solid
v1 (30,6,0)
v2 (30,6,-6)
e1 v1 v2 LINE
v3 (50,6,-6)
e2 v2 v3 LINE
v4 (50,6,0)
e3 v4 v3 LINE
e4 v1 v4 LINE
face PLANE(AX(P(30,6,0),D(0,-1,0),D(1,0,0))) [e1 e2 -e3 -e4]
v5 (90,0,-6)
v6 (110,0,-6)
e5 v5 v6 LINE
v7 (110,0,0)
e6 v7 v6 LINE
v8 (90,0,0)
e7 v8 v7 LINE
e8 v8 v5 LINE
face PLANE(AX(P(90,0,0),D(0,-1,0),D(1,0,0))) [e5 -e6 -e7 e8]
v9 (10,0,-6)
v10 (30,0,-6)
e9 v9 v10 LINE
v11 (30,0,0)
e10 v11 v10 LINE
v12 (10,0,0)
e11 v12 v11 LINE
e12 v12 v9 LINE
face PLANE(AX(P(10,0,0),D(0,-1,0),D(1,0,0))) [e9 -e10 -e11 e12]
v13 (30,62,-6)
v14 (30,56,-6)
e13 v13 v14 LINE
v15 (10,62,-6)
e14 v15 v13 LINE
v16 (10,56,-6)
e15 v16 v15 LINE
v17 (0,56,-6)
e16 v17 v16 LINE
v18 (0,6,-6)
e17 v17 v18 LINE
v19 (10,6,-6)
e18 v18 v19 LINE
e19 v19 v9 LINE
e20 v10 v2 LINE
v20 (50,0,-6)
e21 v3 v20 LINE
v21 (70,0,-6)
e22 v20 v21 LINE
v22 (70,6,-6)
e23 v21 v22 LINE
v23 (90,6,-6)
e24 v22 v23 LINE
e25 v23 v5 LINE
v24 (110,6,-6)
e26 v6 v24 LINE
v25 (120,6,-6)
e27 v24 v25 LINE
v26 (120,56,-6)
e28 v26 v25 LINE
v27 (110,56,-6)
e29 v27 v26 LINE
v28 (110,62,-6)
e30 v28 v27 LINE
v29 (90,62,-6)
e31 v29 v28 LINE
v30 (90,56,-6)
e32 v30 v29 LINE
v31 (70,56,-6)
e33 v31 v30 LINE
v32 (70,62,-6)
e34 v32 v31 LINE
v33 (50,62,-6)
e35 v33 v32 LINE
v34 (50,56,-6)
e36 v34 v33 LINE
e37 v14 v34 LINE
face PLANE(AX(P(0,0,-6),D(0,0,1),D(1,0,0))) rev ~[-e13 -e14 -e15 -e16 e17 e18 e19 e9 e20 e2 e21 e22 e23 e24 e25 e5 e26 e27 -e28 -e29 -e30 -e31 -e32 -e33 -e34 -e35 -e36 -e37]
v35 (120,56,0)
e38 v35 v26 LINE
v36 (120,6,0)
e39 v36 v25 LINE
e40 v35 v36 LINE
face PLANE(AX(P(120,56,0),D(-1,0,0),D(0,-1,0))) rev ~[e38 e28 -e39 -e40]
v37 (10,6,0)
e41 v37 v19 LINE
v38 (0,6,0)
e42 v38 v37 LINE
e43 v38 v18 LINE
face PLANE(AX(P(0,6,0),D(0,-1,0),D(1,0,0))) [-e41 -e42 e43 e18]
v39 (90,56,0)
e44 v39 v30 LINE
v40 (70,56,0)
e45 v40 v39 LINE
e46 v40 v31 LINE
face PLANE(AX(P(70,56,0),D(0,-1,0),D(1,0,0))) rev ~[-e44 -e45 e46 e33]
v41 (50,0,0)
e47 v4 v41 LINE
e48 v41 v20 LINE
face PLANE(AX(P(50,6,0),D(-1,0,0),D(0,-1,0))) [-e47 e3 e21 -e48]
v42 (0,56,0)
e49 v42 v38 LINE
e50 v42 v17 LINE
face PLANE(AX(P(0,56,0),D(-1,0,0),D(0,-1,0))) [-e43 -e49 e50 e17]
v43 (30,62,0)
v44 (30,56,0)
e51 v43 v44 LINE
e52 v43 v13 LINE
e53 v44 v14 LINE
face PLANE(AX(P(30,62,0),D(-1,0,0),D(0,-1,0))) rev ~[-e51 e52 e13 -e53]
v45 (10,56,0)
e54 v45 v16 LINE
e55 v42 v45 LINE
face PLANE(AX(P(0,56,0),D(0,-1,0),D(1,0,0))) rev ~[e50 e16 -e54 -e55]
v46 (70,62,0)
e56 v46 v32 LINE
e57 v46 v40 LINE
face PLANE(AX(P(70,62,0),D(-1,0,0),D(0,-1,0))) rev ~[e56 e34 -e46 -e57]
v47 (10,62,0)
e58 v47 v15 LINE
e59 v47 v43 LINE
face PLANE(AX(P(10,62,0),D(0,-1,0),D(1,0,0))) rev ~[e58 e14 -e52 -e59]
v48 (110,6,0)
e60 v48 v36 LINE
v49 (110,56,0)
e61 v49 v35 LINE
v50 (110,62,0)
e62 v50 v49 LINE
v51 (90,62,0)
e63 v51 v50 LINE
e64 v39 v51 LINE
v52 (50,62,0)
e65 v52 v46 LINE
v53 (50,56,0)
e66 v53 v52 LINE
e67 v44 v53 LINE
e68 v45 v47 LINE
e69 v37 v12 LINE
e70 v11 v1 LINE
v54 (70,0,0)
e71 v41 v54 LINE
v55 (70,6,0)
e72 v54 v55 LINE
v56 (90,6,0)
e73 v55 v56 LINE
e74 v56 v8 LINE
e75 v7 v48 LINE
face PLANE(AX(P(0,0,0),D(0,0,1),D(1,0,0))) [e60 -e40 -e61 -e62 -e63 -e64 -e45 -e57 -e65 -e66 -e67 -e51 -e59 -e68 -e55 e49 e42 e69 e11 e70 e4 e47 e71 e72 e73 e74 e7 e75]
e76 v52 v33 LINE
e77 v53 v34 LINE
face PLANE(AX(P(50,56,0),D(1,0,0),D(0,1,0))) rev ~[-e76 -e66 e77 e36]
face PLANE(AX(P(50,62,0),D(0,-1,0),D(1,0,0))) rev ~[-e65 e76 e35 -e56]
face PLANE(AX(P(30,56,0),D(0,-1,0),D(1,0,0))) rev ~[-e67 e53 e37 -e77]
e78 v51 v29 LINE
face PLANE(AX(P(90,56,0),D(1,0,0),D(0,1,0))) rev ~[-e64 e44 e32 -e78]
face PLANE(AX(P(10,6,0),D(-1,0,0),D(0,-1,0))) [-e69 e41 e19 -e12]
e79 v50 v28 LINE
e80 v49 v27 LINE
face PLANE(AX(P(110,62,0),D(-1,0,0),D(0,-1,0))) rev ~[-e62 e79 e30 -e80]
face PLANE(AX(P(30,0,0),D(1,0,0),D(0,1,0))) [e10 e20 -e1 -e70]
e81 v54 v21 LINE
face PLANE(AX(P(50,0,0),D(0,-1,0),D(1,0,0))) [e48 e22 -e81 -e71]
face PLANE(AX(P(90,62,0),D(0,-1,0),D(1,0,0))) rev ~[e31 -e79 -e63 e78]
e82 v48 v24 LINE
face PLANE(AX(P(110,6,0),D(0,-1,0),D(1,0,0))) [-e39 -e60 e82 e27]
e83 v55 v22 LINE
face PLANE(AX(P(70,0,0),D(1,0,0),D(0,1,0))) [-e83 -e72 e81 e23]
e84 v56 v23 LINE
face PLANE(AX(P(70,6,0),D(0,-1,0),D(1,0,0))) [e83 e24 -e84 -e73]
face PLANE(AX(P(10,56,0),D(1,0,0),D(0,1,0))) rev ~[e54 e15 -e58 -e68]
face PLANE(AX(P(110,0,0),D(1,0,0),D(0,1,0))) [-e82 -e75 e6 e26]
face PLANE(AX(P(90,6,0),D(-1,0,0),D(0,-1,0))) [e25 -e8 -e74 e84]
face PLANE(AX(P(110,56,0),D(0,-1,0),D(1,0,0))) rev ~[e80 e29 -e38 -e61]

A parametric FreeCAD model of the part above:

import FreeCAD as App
import Part
import Sketcher

V = App.Vector
Q = App.Units.Quantity

doc = App.newDocument("Part")
params = doc.addObject("Spreadsheet::Sheet", "Params")
for row, (alias, value) in enumerate([
    ("sketch1_width", "10 mm"),
    ("sketch1_width2", "20 mm"),
    ("sketch1_height", "50 mm"),
    ("sketch1_height2", "6 mm"),
    ("pad1_length", "6 mm"),
], start=1):
    params.set(f"A{row}", alias)
    params.set(f"B{row}", "=" + value)
    params.setAlias(f"B{row}", alias)

body = doc.addObject("PartDesign::Body", "Body")

sketch1 = body.newObject("Sketcher::SketchObject", "Sketch")
sketch1.AttachmentSupport = (doc.getObject("XY_Plane"), [""])
sketch1.MapMode = "FlatFace"
sketch1.addGeometry([
    Part.LineSegment(V(0, 56, 0), V(0, 6, 0)),
    Part.LineSegment(V(0, 6, 0), V(10, 6, 0)),
    Part.LineSegment(V(10, 6, 0), V(10, 0, 0)),
    Part.LineSegment(V(10, 0, 0), V(30, 0, 0)),
    Part.LineSegment(V(30, 0, 0), V(30, 6, 0)),
    Part.LineSegment(V(30, 6, 0), V(50, 6, 0)),
    Part.LineSegment(V(50, 6, 0), V(50, 0, 0)),
    Part.LineSegment(V(50, 0, 0), V(70, 0, 0)),
    Part.LineSegment(V(70, 0, 0), V(70, 6, 0)),
    Part.LineSegment(V(70, 6, 0), V(90, 6, 0)),
    Part.LineSegment(V(90, 6, 0), V(90, 0, 0)),
    Part.LineSegment(V(90, 0, 0), V(110, 0, 0)),
    Part.LineSegment(V(110, 0, 0), V(110, 6, 0)),
    Part.LineSegment(V(110, 6, 0), V(120, 6, 0)),
    Part.LineSegment(V(120, 6, 0), V(120, 56, 0)),
    Part.LineSegment(V(120, 56, 0), V(110, 56, 0)),
    Part.LineSegment(V(110, 56, 0), V(110, 62, 0)),
    Part.LineSegment(V(110, 62, 0), V(90, 62, 0)),
    Part.LineSegment(V(90, 62, 0), V(90, 56, 0)),
    Part.LineSegment(V(90, 56, 0), V(70, 56, 0)),
    Part.LineSegment(V(70, 56, 0), V(70, 62, 0)),
    Part.LineSegment(V(70, 62, 0), V(50, 62, 0)),
    Part.LineSegment(V(50, 62, 0), V(50, 56, 0)),
    Part.LineSegment(V(50, 56, 0), V(30, 56, 0)),
    Part.LineSegment(V(30, 56, 0), V(30, 62, 0)),
    Part.LineSegment(V(30, 62, 0), V(10, 62, 0)),
    Part.LineSegment(V(10, 62, 0), V(10, 56, 0)),
    Part.LineSegment(V(10, 56, 0), V(0, 56, 0)),
], False)
sketch1.addConstraint([
    Sketcher.Constraint("Coincident", 0, 2, 1, 1),
    Sketcher.Constraint("Coincident", 1, 2, 2, 1),
    Sketcher.Constraint("Coincident", 2, 2, 3, 1),
    Sketcher.Constraint("Coincident", 3, 2, 4, 1),
    Sketcher.Constraint("Coincident", 4, 2, 5, 1),
    Sketcher.Constraint("Coincident", 5, 2, 6, 1),
    Sketcher.Constraint("Coincident", 6, 2, 7, 1),
    Sketcher.Constraint("Coincident", 7, 2, 8, 1),
    Sketcher.Constraint("Coincident", 8, 2, 9, 1),
    Sketcher.Constraint("Coincident", 9, 2, 10, 1),
    Sketcher.Constraint("Coincident", 10, 2, 11, 1),
    Sketcher.Constraint("Coincident", 11, 2, 12, 1),
    Sketcher.Constraint("Coincident", 12, 2, 13, 1),
    Sketcher.Constraint("Coincident", 13, 2, 14, 1),
    Sketcher.Constraint("Coincident", 14, 2, 15, 1),
    Sketcher.Constraint("Coincident", 15, 2, 16, 1),
    Sketcher.Constraint("Coincident", 16, 2, 17, 1),
    Sketcher.Constraint("Coincident", 17, 2, 18, 1),
    Sketcher.Constraint("Coincident", 18, 2, 19, 1),
    Sketcher.Constraint("Coincident", 19, 2, 20, 1),
    Sketcher.Constraint("Coincident", 20, 2, 21, 1),
    Sketcher.Constraint("Coincident", 21, 2, 22, 1),
    Sketcher.Constraint("Coincident", 22, 2, 23, 1),
    Sketcher.Constraint("Coincident", 23, 2, 24, 1),
    Sketcher.Constraint("Coincident", 24, 2, 25, 1),
    Sketcher.Constraint("Coincident", 25, 2, 26, 1),
    Sketcher.Constraint("Coincident", 26, 2, 27, 1),
    Sketcher.Constraint("Coincident", 27, 2, 0, 1),
    Sketcher.Constraint("Vertical", 0),
    Sketcher.Constraint("Horizontal", 1),
    Sketcher.Constraint("Vertical", 2),
    Sketcher.Constraint("Horizontal", 3),
    Sketcher.Constraint("Vertical", 4),
    Sketcher.Constraint("Horizontal", 5),
    Sketcher.Constraint("Vertical", 6),
    Sketcher.Constraint("Horizontal", 7),
    Sketcher.Constraint("Vertical", 8),
    Sketcher.Constraint("Horizontal", 9),
    Sketcher.Constraint("Vertical", 10),
    Sketcher.Constraint("Horizontal", 11),
    Sketcher.Constraint("Vertical", 12),
    Sketcher.Constraint("Horizontal", 13),
    Sketcher.Constraint("Vertical", 14),
    Sketcher.Constraint("Horizontal", 15),
    Sketcher.Constraint("Vertical", 16),
    Sketcher.Constraint("Horizontal", 17),
    Sketcher.Constraint("Vertical", 18),
    Sketcher.Constraint("Horizontal", 19),
    Sketcher.Constraint("Vertical", 20),
    Sketcher.Constraint("Horizontal", 21),
    Sketcher.Constraint("Vertical", 22),
    Sketcher.Constraint("Horizontal", 23),
    Sketcher.Constraint("Vertical", 24),
    Sketcher.Constraint("Horizontal", 25),
    Sketcher.Constraint("Vertical", 26),
    Sketcher.Constraint("Horizontal", 27),
    Sketcher.Constraint("PointOnObject", 0, 2, -2),
    Sketcher.Constraint("PointOnObject", 2, 2, -1),
    Sketcher.Constraint("PointOnObject", 6, 2, -1),
    Sketcher.Constraint("PointOnObject", 10, 2, -1),
    Sketcher.Constraint("Horizontal", 1, 2, 4, 2),
    Sketcher.Constraint("Horizontal", 5, 2, 8, 2),
    Sketcher.Constraint("Horizontal", 9, 2, 12, 2),
    Sketcher.Constraint("Horizontal", 15, 2, 18, 2),
    Sketcher.Constraint("Horizontal", 17, 2, 20, 2),
    Sketcher.Constraint("Horizontal", 19, 2, 22, 2),
    Sketcher.Constraint("Horizontal", 21, 2, 24, 2),
    Sketcher.Constraint("Horizontal", 23, 2, 26, 2),
    Sketcher.Constraint("Vertical", 12, 2, 15, 2),
    Sketcher.Constraint("Vertical", 10, 2, 17, 2),
    Sketcher.Constraint("Vertical", 8, 2, 19, 2),
    Sketcher.Constraint("Vertical", 6, 2, 21, 2),
    Sketcher.Constraint("Vertical", 4, 2, 23, 2),
    Sketcher.Constraint("Vertical", 2, 2, 25, 2),
    Sketcher.Constraint("Equal", 3, 5),
    Sketcher.Constraint("Equal", 5, 7),
    Sketcher.Constraint("Equal", 7, 9),
    Sketcher.Constraint("Equal", 9, 11),
    Sketcher.Constraint("Equal", 1, 13),
    Sketcher.Constraint("Equal", 12, 16),
    Sketcher.Constraint("DistanceX", 1, 1, 1, 2, Q("10 mm")),
    Sketcher.Constraint("DistanceX", 3, 1, 3, 2, Q("20 mm")),
    Sketcher.Constraint("DistanceY", 0, 2, 0, 1, Q("50 mm")),
    Sketcher.Constraint("DistanceY", 2, 2, 2, 1, Q("6 mm")),
])
sketch1.setExpression("Constraints[80]", "Params.sketch1_width")
sketch1.setExpression("Constraints[81]", "Params.sketch1_width2")
sketch1.setExpression("Constraints[82]", "Params.sketch1_height")
sketch1.setExpression("Constraints[83]", "Params.sketch1_height2")
pad1 = body.newObject("PartDesign::Pad", "Pad")
pad1.Profile = sketch1
pad1.setExpression("Length", "Params.pad1_length")
pad1.Reversed = True

doc.recompute()
